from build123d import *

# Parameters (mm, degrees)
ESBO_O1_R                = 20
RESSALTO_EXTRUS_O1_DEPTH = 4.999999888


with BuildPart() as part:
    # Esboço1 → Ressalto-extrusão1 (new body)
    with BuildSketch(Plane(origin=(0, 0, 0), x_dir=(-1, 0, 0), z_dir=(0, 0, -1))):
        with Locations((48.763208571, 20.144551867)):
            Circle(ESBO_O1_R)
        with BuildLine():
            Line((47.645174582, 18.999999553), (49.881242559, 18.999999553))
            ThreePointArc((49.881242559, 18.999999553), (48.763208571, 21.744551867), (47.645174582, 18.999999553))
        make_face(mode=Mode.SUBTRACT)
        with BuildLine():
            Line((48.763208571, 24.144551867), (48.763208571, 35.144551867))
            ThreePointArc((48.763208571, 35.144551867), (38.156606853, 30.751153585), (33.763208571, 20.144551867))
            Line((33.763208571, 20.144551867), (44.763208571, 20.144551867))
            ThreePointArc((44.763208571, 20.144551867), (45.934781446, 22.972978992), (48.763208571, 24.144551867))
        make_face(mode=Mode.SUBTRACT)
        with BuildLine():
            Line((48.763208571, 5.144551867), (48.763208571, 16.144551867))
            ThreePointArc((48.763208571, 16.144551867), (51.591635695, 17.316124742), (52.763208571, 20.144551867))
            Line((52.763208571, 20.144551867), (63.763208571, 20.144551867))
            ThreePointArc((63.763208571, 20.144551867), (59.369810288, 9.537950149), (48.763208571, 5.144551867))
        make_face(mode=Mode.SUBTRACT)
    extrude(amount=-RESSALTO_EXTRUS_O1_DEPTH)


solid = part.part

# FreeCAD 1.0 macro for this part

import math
import FreeCAD as App
import Part
import Sketcher
from FreeCAD import Vector
Q = App.Units.Quantity

doc = App.newDocument("Part")
body = doc.addObject("PartDesign::Body", "Body")

sketch1 = doc.addObject("Sketcher::SketchObject", "Sketch")
body.addObject(sketch1)
sketch1.AttachmentSupport = (doc.XY_Plane, [""])
sketch1.MapMode = "FlatFace"
sketch1.addGeometry([
    Part.Circle(Vector(-48.763209, 20.144552, 0), Vector(0, 0, 1), 20),
    Part.ArcOfCircle(Part.Circle(Vector(-48.763209, 20.144552, 0), Vector(0, 0, 1), 15), math.radians(-180), math.radians(-90)),
    Part.LineSegment(Vector(-48.763209, 5.144552, 0), Vector(-48.763209, 16.144552, 0)),
    Part.ArcOfCircle(Part.Circle(Vector(-48.763209, 20.144552, 0), Vector(0, 0, 1), 4), math.radians(-180), math.radians(-90)),
    Part.LineSegment(Vector(-52.763209, 20.144552, 0), Vector(-63.763209, 20.144552, 0)),
    Part.LineSegment(Vector(-49.881243, 19, 0), Vector(-47.645175, 19, 0)),
    Part.ArcOfCircle(Part.Circle(Vector(-48.763209, 20.144552, 0), Vector(0, 0, 1), 1.6), math.radians(-45.671496), math.radians(225.671496)),
    Part.LineSegment(Vector(-48.763209, 35.144552, 0), Vector(-48.763209, 24.144552, 0)),
    Part.ArcOfCircle(Part.Circle(Vector(-48.763209, 20.144552, 0), Vector(0, 0, 1), 4), math.radians(0), math.radians(90)),
    Part.LineSegment(Vector(-44.763209, 20.144552, 0), Vector(-33.763209, 20.144552, 0)),
    Part.ArcOfCircle(Part.Circle(Vector(-48.763209, 20.144552, 0), Vector(0, 0, 1), 15), math.radians(0), math.radians(90)),
], False)
sketch1.addConstraint([
    Sketcher.Constraint("Coincident", 1, 2, 2, 1),
    Sketcher.Constraint("Coincident", 2, 2, 3, 2),
    Sketcher.Constraint("Coincident", 3, 1, 4, 1),
    Sketcher.Constraint("Coincident", 4, 2, 1, 1),
    Sketcher.Constraint("Coincident", 5, 1, 6, 2),
    Sketcher.Constraint("Coincident", 6, 1, 5, 2),
    Sketcher.Constraint("Coincident", 7, 2, 8, 2),
    Sketcher.Constraint("Coincident", 8, 1, 9, 1),
    Sketcher.Constraint("Coincident", 9, 2, 10, 1),
    Sketcher.Constraint("Coincident", 10, 2, 7, 1),
    Sketcher.Constraint("Vertical", 2),
    Sketcher.Constraint("Horizontal", 4),
    Sketcher.Constraint("Horizontal", 5),
    Sketcher.Constraint("Vertical", 7),
    Sketcher.Constraint("Horizontal", 9),
    Sketcher.Constraint("Coincident", 1, 3, 0, 3),
    Sketcher.Constraint("Coincident", 3, 3, 0, 3),
    Sketcher.Constraint("Coincident", 6, 3, 0, 3),
    Sketcher.Constraint("Coincident", 8, 3, 0, 3),
    Sketcher.Constraint("Coincident", 10, 3, 0, 3),
    Sketcher.Constraint("Equal", 3, 8),
    Sketcher.Constraint("Equal", 1, 10),
    Sketcher.Constraint("Horizontal", 10, 3, 3, 1),
    Sketcher.Constraint("Horizontal", 4, 2, 8, 1),
    Sketcher.Constraint("Vertical", 10, 3, 1, 2),
    Sketcher.Constraint("Vertical", 2, 2, 7, 2),
    Sketcher.Constraint("Diameter", 0, Q("40 mm")),
    Sketcher.Constraint("Radius", 1, Q("15 mm")),
    Sketcher.Constraint("Radius", 3, Q("4 mm")),
    Sketcher.Constraint("Radius", 6, Q("1.6 mm")),
    Sketcher.Constraint("DistanceY", -1, 1, 5, 1, Q("19 mm")),
    Sketcher.Constraint("DistanceX", 5, 1, 5, 2, Q("2.236068 mm")),
    Sketcher.Constraint("DistanceX", 0, 3, -1, 1, Q("48.763209 mm")),
])
pad1 = doc.addObject("PartDesign::Pad", "Pad")
body.addObject(pad1)
pad1.Profile = sketch1
pad1.Length = 5

doc.recompute()
